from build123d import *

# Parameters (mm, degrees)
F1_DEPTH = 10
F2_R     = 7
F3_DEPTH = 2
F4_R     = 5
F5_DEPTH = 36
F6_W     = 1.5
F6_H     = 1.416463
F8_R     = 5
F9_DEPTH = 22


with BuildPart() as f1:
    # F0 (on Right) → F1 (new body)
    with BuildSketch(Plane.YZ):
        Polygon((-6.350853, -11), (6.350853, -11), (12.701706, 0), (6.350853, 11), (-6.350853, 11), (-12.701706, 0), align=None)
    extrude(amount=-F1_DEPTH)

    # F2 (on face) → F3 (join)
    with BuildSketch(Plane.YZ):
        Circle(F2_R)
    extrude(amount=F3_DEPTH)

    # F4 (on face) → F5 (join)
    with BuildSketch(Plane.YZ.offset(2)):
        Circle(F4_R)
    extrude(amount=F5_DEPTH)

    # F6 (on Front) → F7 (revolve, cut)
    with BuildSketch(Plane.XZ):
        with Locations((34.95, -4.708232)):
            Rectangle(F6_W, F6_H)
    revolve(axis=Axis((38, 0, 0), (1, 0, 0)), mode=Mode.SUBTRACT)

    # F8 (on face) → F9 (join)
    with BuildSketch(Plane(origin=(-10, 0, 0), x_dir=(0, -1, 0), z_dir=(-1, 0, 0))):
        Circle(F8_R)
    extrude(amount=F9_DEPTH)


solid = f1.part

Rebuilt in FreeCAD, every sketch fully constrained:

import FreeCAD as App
import Part
import Sketcher

V = App.Vector
Q = App.Units.Quantity


def add_polygon(sketch, points):
    """Adds a closed chain of lines whose ends are joined by coincident constraints."""
    first, n = sketch.GeometryCount, len(points)
    for a, b in zip(points, points[1:] + points[:1]):
        sketch.addGeometry(Part.LineSegment(App.Vector(*a, 0), App.Vector(*b, 0)), False)
    for i in range(n):
        sketch.addConstraint(Sketcher.Constraint("Coincident", first + i, 2, first + (i + 1) % n, 1))

doc = App.newDocument("Part")
body = doc.addObject("PartDesign::Body", "Body")

# Sketch on YZ plane
sketch1 = doc.addObject("Sketcher::SketchObject", "Sketch")
body.addObject(sketch1)
sketch1.AttachmentSupport = (doc.YZ_Plane, [""])
sketch1.MapMode = "FlatFace"
add_polygon(sketch1, [(-6, -11), (6, -11), (13, 0), (6, 11), (-6, 11), (-13, 0)])  # lines 0-5
sketch1.addConstraint(Sketcher.Constraint("Horizontal", 0))
sketch1.addConstraint(Sketcher.Constraint("Horizontal", 3))
sketch1.addConstraint(Sketcher.Constraint("Symmetric", 0, 2, 3, 2, -1, 1))
sketch1.addConstraint(Sketcher.Constraint("Symmetric", 1, 2, 4, 2, -1, 1))
sketch1.addConstraint(Sketcher.Constraint("PointOnObject", 1, 2, -1))
sketch1.addConstraint(Sketcher.Constraint("Parallel", 2, 5))
sketch1.addConstraint(Sketcher.Constraint("Vertical", 0, 2, 2, 2))
sketch1.addConstraint(Sketcher.Constraint("Angle", 1, Q("60 deg")))
sketch1.addConstraint(Sketcher.Constraint("DistanceY", 0, 2, -1, 1, 11.0))
sketch1.addConstraint(Sketcher.Constraint("DistanceX", 0, 1, 0, 2, 12.701706))
pad1 = doc.addObject("PartDesign::Pad", "Pad")
body.addObject(pad1)
pad1.Profile = sketch1
pad1.Length = 10
pad1.Reversed = True

# Sketch on YZ plane
sketch2 = doc.addObject("Sketcher::SketchObject", "Sketch001")
body.addObject(sketch2)
sketch2.AttachmentSupport = (doc.YZ_Plane, [""])
sketch2.MapMode = "FlatFace"
sketch2.addGeometry(Part.Circle(V(0, 0, 0), V(0, 0, 1), 7), False)
sketch2.addConstraint(Sketcher.Constraint("Coincident", 0, 3, -1, 1))
sketch2.addConstraint(Sketcher.Constraint("Diameter", 0, 14.0))
pad2 = doc.addObject("PartDesign::Pad", "Pad001")
body.addObject(pad2)
pad2.Profile = sketch2
pad2.Length = 2

# Sketch on YZ plane
sketch3 = doc.addObject("Sketcher::SketchObject", "Sketch002")
body.addObject(sketch3)
sketch3.AttachmentSupport = (doc.YZ_Plane, [""])
sketch3.MapMode = "FlatFace"
sketch3.AttachmentOffset = App.Placement(V(0, 0, 2), App.Rotation())
sketch3.addGeometry(Part.Circle(V(0, 0, 0), V(0, 0, 1), 5), False)
sketch3.addConstraint(Sketcher.Constraint("Coincident", 0, 3, -1, 1))
sketch3.addConstraint(Sketcher.Constraint("Diameter", 0, 10.0))
pad3 = doc.addObject("PartDesign::Pad", "Pad002")
body.addObject(pad3)
pad3.Profile = sketch3
pad3.Length = 36

# Sketch on XZ plane
sketch4 = doc.addObject("Sketcher::SketchObject", "Sketch003")
body.addObject(sketch4)
sketch4.AttachmentSupport = (doc.XZ_Plane, [""])
sketch4.MapMode = "FlatFace"
add_polygon(sketch4, [(34.2, -4), (34.2, -5.4), (35.7, -5.4), (35.7, -4)])  # lines 0-3
sketch4.addConstraint(Sketcher.Constraint("Vertical", 0))
sketch4.addConstraint(Sketcher.Constraint("Horizontal", 1))
sketch4.addConstraint(Sketcher.Constraint("Vertical", 2))
sketch4.addConstraint(Sketcher.Constraint("Horizontal", 3))
sketch4.addConstraint(Sketcher.Constraint("DistanceX", 1, 1, 1, 2, 1.5))
sketch4.addConstraint(Sketcher.Constraint("DistanceY", 2, 2, -1, 1, 4.0))
sketch4.addConstraint(Sketcher.Constraint("DistanceX", -1, 1, 0, 2, 34.2))
sketch4.addConstraint(Sketcher.Constraint("DistanceY", 0, 2, 0, 1, 1.416463))
groove = doc.addObject("PartDesign::Groove", "Groove")
body.addObject(groove)
groove.Profile = sketch4
groove.ReferenceAxis = (sketch4, ["H_Axis"])
groove.Angle = 360

# Sketch on YZ plane
sketch5 = doc.addObject("Sketcher::SketchObject", "Sketch004")
body.addObject(sketch5)
sketch5.AttachmentSupport = (doc.YZ_Plane, [""])
sketch5.MapMode = "FlatFace"
sketch5.AttachmentOffset = App.Placement(V(0, 0, -10), App.Rotation())
sketch5.addGeometry(Part.Circle(V(0, 0, 0), V(0, 0, 1), 5), False)
sketch5.addConstraint(Sketcher.Constraint("Coincident", 0, 3, -1, 1))
sketch5.addConstraint(Sketcher.Constraint("Diameter", 0, 10.0))
pad4 = doc.addObject("PartDesign::Pad", "Pad003")
body.addObject(pad4)
pad4.Profile = sketch5
pad4.Length = 22
pad4.Reversed = True

doc.recompute()
